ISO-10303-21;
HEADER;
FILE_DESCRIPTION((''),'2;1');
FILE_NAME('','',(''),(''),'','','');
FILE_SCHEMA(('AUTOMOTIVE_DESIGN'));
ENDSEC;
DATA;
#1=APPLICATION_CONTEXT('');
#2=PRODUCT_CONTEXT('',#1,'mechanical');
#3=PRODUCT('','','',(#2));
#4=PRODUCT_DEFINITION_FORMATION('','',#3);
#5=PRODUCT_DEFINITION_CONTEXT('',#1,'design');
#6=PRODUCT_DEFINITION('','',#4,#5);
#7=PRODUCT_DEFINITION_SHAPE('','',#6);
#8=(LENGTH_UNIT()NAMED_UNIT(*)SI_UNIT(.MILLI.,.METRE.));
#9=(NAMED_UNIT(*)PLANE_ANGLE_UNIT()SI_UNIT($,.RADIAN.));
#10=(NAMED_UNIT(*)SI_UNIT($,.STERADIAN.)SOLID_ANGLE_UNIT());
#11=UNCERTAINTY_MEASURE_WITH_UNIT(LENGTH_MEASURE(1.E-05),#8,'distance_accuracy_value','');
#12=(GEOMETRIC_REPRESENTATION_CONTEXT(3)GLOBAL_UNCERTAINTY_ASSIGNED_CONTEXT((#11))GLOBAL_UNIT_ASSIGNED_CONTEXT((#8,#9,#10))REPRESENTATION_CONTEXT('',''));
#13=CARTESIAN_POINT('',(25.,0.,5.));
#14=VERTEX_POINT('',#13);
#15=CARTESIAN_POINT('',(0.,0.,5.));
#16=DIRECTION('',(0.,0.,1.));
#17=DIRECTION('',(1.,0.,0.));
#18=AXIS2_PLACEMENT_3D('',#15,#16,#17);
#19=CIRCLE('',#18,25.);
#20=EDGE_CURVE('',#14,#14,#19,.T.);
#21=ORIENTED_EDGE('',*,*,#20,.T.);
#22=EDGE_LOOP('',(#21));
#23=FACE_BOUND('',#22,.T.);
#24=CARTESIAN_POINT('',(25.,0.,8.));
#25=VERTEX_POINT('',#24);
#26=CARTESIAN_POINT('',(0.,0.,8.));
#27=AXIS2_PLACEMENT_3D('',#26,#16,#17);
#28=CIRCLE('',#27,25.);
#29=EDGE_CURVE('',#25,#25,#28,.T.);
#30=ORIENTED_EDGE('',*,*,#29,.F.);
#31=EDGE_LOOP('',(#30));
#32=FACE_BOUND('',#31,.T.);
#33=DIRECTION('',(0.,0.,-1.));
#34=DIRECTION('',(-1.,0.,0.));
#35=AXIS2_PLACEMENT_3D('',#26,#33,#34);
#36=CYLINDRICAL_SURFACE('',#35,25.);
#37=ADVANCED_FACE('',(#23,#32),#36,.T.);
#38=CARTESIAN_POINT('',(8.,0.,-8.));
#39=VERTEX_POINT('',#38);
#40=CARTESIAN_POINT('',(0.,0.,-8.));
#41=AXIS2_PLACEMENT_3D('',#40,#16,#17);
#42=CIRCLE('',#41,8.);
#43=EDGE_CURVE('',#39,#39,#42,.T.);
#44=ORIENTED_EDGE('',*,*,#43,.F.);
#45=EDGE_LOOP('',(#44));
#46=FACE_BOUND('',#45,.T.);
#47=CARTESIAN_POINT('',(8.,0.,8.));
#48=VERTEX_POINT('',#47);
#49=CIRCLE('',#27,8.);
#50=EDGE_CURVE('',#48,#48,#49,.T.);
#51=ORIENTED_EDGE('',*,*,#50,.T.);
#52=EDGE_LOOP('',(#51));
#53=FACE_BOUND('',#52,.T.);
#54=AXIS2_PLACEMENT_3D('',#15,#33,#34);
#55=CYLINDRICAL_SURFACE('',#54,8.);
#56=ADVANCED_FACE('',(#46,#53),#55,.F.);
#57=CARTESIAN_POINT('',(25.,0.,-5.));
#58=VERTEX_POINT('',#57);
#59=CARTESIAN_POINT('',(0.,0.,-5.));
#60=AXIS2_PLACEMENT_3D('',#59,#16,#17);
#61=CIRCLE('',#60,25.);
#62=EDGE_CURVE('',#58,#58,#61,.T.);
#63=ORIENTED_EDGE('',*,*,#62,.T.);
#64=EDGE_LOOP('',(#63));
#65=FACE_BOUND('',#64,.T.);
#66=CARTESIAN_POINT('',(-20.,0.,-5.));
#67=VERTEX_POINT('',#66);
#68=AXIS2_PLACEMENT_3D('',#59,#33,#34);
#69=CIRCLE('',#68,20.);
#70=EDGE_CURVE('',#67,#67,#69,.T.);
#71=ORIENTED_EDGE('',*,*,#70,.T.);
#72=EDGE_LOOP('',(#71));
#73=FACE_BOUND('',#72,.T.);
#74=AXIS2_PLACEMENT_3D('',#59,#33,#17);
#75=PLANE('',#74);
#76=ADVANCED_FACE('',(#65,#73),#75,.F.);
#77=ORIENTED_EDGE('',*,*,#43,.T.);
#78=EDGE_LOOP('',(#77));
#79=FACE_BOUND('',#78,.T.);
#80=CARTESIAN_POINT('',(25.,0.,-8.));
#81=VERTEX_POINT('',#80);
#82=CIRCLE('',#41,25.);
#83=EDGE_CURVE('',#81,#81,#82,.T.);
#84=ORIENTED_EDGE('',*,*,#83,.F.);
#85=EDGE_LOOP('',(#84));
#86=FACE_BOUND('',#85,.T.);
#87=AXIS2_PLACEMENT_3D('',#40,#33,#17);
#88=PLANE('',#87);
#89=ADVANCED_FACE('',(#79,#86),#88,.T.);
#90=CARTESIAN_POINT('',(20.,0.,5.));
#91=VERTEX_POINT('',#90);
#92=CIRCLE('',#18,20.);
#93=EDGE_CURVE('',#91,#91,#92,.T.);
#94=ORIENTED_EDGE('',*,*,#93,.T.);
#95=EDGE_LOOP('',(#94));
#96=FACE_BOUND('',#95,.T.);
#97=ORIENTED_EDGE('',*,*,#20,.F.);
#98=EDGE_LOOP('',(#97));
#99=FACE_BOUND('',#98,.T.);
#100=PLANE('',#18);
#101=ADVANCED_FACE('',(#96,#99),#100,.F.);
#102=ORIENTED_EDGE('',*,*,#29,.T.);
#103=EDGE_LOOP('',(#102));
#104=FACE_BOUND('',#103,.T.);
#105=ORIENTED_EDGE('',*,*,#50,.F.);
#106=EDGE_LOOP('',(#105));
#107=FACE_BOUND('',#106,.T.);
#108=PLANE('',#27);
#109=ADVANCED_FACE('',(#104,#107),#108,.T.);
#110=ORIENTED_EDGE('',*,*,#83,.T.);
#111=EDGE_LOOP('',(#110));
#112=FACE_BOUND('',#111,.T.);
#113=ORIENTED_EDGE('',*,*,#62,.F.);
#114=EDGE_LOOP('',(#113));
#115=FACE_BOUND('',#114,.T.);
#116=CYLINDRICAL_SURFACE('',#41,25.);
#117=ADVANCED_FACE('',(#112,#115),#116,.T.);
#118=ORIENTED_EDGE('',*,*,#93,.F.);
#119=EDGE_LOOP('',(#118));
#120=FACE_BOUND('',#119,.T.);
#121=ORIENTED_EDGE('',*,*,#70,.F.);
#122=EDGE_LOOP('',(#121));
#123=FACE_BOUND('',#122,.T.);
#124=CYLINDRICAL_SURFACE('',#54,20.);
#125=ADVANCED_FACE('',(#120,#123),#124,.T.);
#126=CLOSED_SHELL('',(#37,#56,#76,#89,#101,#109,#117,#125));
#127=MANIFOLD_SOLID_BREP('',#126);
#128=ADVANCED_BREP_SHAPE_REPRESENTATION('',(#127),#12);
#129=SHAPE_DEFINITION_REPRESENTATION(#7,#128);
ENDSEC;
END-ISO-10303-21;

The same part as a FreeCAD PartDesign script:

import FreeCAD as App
import Part
import Sketcher
Q = App.Units.Quantity

doc = App.newDocument("Part")
params = doc.addObject("Spreadsheet::Sheet", "Params")
for row, (alias, value) in enumerate([
    ("sketch1_diameter", "40 mm"),
    ("sketch1_diameter2", "16 mm"),
    ("pad1_length", "10 mm"),
    ("sketch2_diameter", "50 mm"),
    ("sketch2_diameter2", "16 mm"),
    ("pad2_length", "3 mm"),
], start=1):
    params.set(f"A{row}", alias)
    params.set(f"B{row}", "=" + value)
    params.setAlias(f"B{row}", alias)

body = doc.addObject("PartDesign::Body", "Body")

# Sketch on XY plane
sketch1 = body.newObject("Sketcher::SketchObject", "Sketch")
sketch1.AttachmentSupport = (doc.getObject("XY_Plane"), [""])
sketch1.MapMode = "FlatFace"
sketch1.addGeometry(Part.Circle(App.Vector(0, 0, 0), App.Vector(0, 0, 1), 20), False)
sketch1.addGeometry(Part.Circle(App.Vector(0, 0, 0), App.Vector(0, 0, 1), 8), False)
sketch1.addConstraint(Sketcher.Constraint("Coincident", 0, 3, -1, 1))
sketch1.addConstraint(Sketcher.Constraint("Coincident", 1, 3, -1, 1))
sketch1.addConstraint(Sketcher.Constraint("Diameter", 0, Q("40 mm")))
sketch1.addConstraint(Sketcher.Constraint("Diameter", 1, Q("16 mm")))
sketch1.setExpression("Constraints[2]", "Params.sketch1_diameter")
sketch1.setExpression("Constraints[3]", "Params.sketch1_diameter2")
pad1 = body.newObject("PartDesign::Pad", "Pad")
pad1.Profile = sketch1
pad1.setExpression("Length", "Params.pad1_length")
pad1.Midplane = True

# Sketch on XY plane
sketch2 = body.newObject("Sketcher::SketchObject", "Sketch001")
sketch2.AttachmentSupport = (doc.getObject("XY_Plane"), [""])
sketch2.MapMode = "FlatFace"
sketch2.AttachmentOffset = App.Placement(App.Vector(0, 0, 5), App.Rotation())
sketch2.addGeometry(Part.Circle(App.Vector(0, 0, 0), App.Vector(0, 0, 1), 25), False)
sketch2.addGeometry(Part.Circle(App.Vector(0, 0, 0), App.Vector(0, 0, 1), 8), False)
sketch2.addConstraint(Sketcher.Constraint("Coincident", 0, 3, -1, 1))
sketch2.addConstraint(Sketcher.Constraint("Coincident", 1, 3, -1, 1))
sketch2.addConstraint(Sketcher.Constraint("Diameter", 0, Q("50 mm")))
sketch2.addConstraint(Sketcher.Constraint("Diameter", 1, Q("16 mm")))
sketch2.setExpression("Constraints[2]", "Params.sketch2_diameter")
sketch2.setExpression("Constraints[3]", "Params.sketch2_diameter2")
pad2 = body.newObject("PartDesign::Pad", "Pad001")
pad2.Profile = sketch2
pad2.setExpression("Length", "Params.pad2_length")
doc.recompute()

mirrored = body.newObject("PartDesign::Mirrored", "Mirrored")
mirrored.Originals = [pad2]
mirrored.MirrorPlane = (doc.getObject("XY_Plane"), [""])
body.Tip = mirrored

doc.recompute()
